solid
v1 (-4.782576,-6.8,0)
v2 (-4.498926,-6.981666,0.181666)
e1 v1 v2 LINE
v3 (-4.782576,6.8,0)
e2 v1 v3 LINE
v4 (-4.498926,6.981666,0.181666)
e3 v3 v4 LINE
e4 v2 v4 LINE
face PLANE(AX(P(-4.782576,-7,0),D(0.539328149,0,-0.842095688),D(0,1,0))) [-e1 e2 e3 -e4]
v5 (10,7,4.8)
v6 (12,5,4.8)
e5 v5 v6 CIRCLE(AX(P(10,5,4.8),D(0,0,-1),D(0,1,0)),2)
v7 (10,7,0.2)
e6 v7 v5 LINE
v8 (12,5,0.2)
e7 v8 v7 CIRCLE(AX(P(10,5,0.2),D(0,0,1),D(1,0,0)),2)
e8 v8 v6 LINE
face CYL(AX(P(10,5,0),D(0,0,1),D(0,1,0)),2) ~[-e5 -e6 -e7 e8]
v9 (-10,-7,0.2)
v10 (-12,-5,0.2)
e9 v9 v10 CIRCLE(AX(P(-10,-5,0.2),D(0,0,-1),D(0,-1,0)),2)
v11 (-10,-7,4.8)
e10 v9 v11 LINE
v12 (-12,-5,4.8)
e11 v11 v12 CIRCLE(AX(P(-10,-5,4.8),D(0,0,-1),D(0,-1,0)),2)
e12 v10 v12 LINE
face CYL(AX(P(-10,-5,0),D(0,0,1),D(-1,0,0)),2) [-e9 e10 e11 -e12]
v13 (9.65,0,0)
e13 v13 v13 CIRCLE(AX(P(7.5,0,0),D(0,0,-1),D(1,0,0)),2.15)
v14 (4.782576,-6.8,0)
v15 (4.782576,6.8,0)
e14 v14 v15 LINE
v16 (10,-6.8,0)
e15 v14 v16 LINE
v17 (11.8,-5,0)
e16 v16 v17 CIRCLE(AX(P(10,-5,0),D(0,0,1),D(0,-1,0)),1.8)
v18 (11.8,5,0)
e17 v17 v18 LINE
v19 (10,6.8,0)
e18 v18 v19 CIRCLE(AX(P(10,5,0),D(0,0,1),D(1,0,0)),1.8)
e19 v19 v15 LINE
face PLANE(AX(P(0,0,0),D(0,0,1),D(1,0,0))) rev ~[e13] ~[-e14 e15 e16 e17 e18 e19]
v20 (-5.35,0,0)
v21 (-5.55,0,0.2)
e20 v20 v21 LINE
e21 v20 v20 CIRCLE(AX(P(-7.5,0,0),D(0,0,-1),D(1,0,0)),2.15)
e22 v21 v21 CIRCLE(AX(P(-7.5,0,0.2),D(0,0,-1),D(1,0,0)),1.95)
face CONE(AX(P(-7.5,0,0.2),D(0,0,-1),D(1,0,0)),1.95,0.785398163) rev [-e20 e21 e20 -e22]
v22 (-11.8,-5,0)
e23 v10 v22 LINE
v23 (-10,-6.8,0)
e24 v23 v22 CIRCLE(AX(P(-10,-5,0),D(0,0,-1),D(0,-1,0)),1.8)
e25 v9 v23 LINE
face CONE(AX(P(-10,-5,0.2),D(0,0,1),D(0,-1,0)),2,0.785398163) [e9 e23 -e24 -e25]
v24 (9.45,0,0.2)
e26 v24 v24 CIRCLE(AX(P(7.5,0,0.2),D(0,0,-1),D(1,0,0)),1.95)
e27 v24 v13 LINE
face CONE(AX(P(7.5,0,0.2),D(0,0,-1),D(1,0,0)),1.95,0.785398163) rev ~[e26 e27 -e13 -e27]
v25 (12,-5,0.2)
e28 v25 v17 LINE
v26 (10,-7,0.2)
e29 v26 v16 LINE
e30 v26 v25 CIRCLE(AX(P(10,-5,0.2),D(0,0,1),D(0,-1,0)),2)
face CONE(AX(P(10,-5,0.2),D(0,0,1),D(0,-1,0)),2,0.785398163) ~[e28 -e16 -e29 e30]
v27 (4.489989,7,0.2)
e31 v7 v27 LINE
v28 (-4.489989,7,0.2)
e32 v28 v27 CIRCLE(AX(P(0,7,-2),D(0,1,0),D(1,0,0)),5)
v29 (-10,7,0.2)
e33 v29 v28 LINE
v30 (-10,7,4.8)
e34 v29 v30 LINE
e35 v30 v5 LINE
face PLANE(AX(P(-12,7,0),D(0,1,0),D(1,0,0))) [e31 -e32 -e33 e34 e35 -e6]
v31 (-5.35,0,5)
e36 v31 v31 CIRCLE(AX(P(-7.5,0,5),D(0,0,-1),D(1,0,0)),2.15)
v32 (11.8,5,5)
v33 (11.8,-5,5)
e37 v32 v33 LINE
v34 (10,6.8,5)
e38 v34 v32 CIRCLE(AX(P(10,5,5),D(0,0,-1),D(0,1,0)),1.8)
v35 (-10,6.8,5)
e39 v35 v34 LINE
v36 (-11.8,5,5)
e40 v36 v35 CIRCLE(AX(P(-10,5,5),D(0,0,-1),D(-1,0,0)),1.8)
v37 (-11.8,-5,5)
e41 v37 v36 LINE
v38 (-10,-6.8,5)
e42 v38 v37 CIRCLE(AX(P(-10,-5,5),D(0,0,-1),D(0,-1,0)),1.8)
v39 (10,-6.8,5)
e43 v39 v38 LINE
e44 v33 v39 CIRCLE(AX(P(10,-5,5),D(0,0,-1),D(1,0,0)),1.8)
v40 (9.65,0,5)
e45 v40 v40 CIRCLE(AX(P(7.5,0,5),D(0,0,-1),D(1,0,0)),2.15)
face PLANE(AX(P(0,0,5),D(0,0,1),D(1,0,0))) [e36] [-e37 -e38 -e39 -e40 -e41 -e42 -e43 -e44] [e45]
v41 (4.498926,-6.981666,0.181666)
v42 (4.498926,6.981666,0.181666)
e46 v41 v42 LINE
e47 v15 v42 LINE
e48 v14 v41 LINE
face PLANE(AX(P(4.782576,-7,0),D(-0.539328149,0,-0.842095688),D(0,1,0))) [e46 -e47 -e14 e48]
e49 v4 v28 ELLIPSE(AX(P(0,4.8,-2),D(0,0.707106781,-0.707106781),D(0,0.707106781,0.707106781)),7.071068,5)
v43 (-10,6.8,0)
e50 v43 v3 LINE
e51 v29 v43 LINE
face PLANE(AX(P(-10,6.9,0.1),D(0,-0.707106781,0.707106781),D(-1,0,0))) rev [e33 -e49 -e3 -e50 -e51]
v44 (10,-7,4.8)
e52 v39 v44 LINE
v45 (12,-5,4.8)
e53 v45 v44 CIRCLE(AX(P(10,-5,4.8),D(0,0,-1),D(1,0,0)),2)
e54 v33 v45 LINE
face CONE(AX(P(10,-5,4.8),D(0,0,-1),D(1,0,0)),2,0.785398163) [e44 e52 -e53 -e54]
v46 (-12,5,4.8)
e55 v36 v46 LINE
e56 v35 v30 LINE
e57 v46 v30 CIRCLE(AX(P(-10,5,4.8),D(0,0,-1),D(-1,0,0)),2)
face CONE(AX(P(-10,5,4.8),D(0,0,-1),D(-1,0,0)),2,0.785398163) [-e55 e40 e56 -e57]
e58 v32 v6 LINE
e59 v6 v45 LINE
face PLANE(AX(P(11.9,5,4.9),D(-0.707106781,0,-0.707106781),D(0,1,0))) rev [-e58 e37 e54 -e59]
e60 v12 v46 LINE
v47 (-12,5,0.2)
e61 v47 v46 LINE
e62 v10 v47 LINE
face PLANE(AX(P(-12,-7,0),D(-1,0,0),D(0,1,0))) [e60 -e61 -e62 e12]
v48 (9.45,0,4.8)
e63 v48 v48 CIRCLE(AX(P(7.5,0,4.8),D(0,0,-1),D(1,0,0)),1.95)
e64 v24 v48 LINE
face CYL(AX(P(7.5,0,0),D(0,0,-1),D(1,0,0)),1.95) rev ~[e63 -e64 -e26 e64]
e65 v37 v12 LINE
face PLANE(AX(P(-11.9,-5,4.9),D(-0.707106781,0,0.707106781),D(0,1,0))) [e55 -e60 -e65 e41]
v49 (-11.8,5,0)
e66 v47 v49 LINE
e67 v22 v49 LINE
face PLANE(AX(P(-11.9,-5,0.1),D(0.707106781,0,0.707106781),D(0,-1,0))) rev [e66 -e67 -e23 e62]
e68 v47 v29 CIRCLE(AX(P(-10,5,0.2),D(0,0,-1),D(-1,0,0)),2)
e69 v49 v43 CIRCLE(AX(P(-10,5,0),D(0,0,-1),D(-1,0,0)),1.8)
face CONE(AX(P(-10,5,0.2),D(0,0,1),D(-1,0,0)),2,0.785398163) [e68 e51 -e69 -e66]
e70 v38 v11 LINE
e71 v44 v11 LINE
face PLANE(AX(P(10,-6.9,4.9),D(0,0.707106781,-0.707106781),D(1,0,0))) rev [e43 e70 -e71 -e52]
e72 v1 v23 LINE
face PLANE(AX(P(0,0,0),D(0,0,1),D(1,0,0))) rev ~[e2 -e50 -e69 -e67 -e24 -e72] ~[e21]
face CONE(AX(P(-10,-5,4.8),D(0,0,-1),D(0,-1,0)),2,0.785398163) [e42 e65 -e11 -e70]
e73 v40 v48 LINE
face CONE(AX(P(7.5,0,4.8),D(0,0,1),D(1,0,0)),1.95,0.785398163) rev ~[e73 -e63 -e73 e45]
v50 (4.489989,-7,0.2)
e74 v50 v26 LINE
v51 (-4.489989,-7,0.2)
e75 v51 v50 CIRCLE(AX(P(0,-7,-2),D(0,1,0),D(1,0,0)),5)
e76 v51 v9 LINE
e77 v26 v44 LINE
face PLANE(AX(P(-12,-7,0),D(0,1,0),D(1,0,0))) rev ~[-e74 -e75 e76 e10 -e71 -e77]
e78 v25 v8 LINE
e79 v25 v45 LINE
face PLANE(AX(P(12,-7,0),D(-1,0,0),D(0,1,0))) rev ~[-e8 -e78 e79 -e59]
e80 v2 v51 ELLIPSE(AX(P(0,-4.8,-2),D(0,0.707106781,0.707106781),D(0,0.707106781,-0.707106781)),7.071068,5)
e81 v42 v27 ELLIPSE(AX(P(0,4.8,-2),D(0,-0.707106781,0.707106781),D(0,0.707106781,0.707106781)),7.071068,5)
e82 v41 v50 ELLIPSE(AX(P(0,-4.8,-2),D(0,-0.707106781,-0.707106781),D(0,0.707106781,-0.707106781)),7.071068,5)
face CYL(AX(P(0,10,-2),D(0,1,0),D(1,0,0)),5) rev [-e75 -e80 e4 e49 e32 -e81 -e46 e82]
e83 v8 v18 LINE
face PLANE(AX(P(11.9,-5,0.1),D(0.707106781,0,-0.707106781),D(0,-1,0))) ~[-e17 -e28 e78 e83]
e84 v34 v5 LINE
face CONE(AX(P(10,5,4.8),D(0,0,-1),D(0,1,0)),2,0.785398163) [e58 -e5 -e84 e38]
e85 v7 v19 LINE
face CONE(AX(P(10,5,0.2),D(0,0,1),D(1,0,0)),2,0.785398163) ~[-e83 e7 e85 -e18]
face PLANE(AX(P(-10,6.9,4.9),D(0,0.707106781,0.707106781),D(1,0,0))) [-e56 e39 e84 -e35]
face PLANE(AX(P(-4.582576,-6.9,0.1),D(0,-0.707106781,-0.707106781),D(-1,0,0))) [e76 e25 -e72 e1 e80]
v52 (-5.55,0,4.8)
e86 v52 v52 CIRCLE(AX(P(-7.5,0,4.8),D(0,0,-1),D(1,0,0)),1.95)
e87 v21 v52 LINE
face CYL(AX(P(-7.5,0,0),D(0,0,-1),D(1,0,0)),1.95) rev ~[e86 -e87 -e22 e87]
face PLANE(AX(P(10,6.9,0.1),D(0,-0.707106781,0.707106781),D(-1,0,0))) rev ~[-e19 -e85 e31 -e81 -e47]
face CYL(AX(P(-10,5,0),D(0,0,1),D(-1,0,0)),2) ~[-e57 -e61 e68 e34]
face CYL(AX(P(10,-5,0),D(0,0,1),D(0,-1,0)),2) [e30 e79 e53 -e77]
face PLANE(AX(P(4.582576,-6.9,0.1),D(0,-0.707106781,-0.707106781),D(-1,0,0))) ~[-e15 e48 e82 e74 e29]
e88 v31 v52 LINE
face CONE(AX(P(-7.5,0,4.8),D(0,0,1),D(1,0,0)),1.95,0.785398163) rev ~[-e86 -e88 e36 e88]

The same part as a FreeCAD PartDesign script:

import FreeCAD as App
import Part
import Sketcher


def edges_at(feature, points):
    """Names of the edges that pass closest to the given points."""
    edges = feature.Shape.Edges
    near = lambda p: min(range(len(edges)), key=lambda i: edges[i].distToShape(Part.Vertex(*p))[0])
    return sorted({f"Edge{near(p) + 1}" for p in points})


def add_polygon(sketch, points):
    """Adds a closed chain of lines whose ends are joined by coincident constraints."""
    first, n = sketch.GeometryCount, len(points)
    for a, b in zip(points, points[1:] + points[:1]):
        sketch.addGeometry(Part.LineSegment(App.Vector(*a, 0), App.Vector(*b, 0)), False)
    for i in range(n):
        sketch.addConstraint(Sketcher.Constraint("Coincident", first + i, 2, first + (i + 1) % n, 1))

doc = App.newDocument("Part")
body = doc.addObject("PartDesign::Body", "Body")

sketch1 = body.newObject("Sketcher::SketchObject", "Sketch")
sketch1.AttachmentSupport = (doc.getObject("XY_Plane"), [""])
sketch1.MapMode = "FlatFace"
sketch1.addGeometry(Part.Circle(App.Vector(0, 0, 0), App.Vector(0, 0, 1), 5), False)
sketch1.addConstraint([
    Sketcher.Constraint("Coincident", 0, 3, -1, 1),
    Sketcher.Constraint("Diameter", 0, 10.0),
])
pad1 = body.newObject("PartDesign::Pad", "Pad")
pad1.Profile = sketch1
pad1.Length = 20
body2 = doc.addObject("PartDesign::Body", "Body001")
doc.recompute()

body.Placement = App.Placement(App.Vector(0, 0, 0), App.Rotation(App.Vector(1, 0, 0), 90))
boolean = body2.newObject("PartDesign::Boolean", "Boolean")
boolean.Type = "Fuse"
boolean.addObjects([body])
body3 = doc.addObject("PartDesign::Body", "Body002")
doc.recompute()

body2.Placement = App.Placement(App.Vector(0, 10, -2), App.Rotation(App.Vector(0, 0, 1), 0))
boolean2 = body3.newObject("PartDesign::Boolean", "Boolean001")
boolean2.Type = "Fuse"
boolean2.addObjects([body2])
body4 = doc.addObject("PartDesign::Body", "Body003")

sketch2 = body4.newObject("Sketcher::SketchObject", "Sketch001")
sketch2.AttachmentSupport = (doc.getObject("XY_Plane003"), [""])
sketch2.MapMode = "FlatFace"
add_polygon(sketch2, [(-12, 7), (-12, -7), (12, -7), (12, 7)])
sketch2.addConstraint([
    Sketcher.Constraint("Vertical", 0),
    Sketcher.Constraint("Horizontal", 1),
    Sketcher.Constraint("Vertical", 2),
    Sketcher.Constraint("Horizontal", 3),
    Sketcher.Constraint("Symmetric", 0, 2, 2, 2, -1, 1),
    Sketcher.Constraint("DistanceX", 1, 1, 1, 2, 24.0),
    Sketcher.Constraint("DistanceY", 0, 2, 0, 1, 14.0),
])
pad2 = body4.newObject("PartDesign::Pad", "Pad001")
pad2.Profile = sketch2
pad2.Length = 5
doc.recompute()

boolean3 = body4.newObject("PartDesign::Boolean", "Boolean002")
boolean3.Type = "Cut"
boolean3.addObjects([body3])

sketch3 = body4.newObject("Sketcher::SketchObject", "Sketch002")
sketch3.AttachmentSupport = (doc.getObject("XY_Plane003"), [""])
sketch3.MapMode = "FlatFace"
sketch3.addGeometry([
    Part.Circle(App.Vector(-7.5, 0, 0), App.Vector(0, 0, 1), 1.95),
    Part.Circle(App.Vector(7.5, 0, 0), App.Vector(0, 0, 1), 1.95),
], False)
sketch3.addConstraint([
    Sketcher.Constraint("Equal", 0, 1),
    Sketcher.Constraint("Symmetric", 0, 3, 1, 3, -1, 1),
    Sketcher.Constraint("PointOnObject", 0, 3, -1),
    Sketcher.Constraint("Diameter", 0, 3.9),
    Sketcher.Constraint("DistanceX", 0, 3, 1, 3, 15.0),
])
pocket1 = body4.newObject("PartDesign::Pocket", "Pocket")
pocket1.Profile = sketch3
pocket1.Length = 15
pocket1.Reversed = True
doc.recompute()

fillet = body4.newObject("PartDesign::Fillet", "Fillet")
fillet.Base = (pocket1, edges_at(pocket1, [
    (-12, 7, 2.5),
    (-12, -7, 2.5),
    (12, -7, 2.5),
    (12, 7, 2.5),
]))
fillet.Radius = 2
doc.recompute()

chamfer = body4.newObject("PartDesign::Chamfer", "Chamfer")
chamfer.Base = (fillet, edges_at(fillet, [
    (-12, 0, 0),
    (-11.414, 6.414, 0),
    (-7.291, 7, 0),
    (-4.583, 0, 0),
    (-7.291, -7, 0),
    (-11.414, -6.414, 0),
    (4.583, 0, 0),
    (7.291, -7, 0),
    (11.414, -6.414, 0),
    (12, 0, 0),
    (11.414, 6.414, 0),
    (7.291, 7, 0),
    (-9.45, 0, 0),
    (5.55, 0, 0),
]))
chamfer.Size = 0.2
doc.recompute()

chamfer2 = body4.newObject("PartDesign::Chamfer", "Chamfer001")
chamfer2.Base = (chamfer, edges_at(chamfer, [
    (0, 7, 5),
    (11.414, 6.414, 5),
    (12, 0, 5),
    (11.414, -6.414, 5),
    (0, -7, 5),
    (-11.414, -6.414, 5),
    (-12, 0, 5),
    (-11.414, 6.414, 5),
    (-9.45, 0, 5),
    (5.55, 0, 5),
]))
chamfer2.Size = 0.2

doc.recompute()
